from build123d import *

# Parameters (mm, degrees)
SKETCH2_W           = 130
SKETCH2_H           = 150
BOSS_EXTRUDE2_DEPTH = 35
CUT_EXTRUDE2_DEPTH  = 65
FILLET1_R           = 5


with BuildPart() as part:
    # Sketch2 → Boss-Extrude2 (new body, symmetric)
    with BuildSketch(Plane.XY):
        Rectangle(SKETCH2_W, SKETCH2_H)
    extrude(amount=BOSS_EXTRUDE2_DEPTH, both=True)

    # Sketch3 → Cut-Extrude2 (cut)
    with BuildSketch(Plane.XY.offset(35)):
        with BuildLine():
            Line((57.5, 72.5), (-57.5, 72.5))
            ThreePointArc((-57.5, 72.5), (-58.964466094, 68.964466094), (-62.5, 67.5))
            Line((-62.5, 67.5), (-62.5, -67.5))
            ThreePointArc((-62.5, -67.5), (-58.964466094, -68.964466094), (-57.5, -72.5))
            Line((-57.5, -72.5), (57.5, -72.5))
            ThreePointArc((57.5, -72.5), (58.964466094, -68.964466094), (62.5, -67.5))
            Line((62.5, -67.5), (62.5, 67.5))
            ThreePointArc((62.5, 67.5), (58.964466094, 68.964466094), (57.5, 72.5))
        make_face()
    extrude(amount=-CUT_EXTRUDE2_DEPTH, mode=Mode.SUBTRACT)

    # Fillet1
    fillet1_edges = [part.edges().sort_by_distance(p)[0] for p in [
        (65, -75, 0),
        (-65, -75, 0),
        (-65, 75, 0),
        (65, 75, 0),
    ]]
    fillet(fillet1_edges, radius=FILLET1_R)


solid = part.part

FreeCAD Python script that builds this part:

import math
import FreeCAD as App
import Part
import Sketcher

V = App.Vector


def edges_at(feature, points):
    """Names of the edges that pass closest to the given points."""
    edges = feature.Shape.Edges
    near = lambda p: min(range(len(edges)), key=lambda i: edges[i].distToShape(Part.Vertex(*p))[0])
    return sorted({f"Edge{near(p) + 1}" for p in points})


def add_polygon(sketch, points):
    """Adds a closed chain of lines whose ends are joined by coincident constraints."""
    first, n = sketch.GeometryCount, len(points)
    for a, b in zip(points, points[1:] + points[:1]):
        sketch.addGeometry(Part.LineSegment(App.Vector(*a, 0), App.Vector(*b, 0)), False)
    for i in range(n):
        sketch.addConstraint(Sketcher.Constraint("Coincident", first + i, 2, first + (i + 1) % n, 1))

doc = App.newDocument("Part")
body = doc.addObject("PartDesign::Body", "Body")

# Sketch on XY plane
sketch1 = body.newObject("Sketcher::SketchObject", "Sketch")
sketch1.AttachmentSupport = (doc.getObject("XY_Plane"), [""])
sketch1.MapMode = "FlatFace"
add_polygon(sketch1, [(-65, 75), (-65, -75), (65, -75), (65, 75)])  # lines 0-3
sketch1.addConstraint(Sketcher.Constraint("Vertical", 0))
sketch1.addConstraint(Sketcher.Constraint("Horizontal", 1))
sketch1.addConstraint(Sketcher.Constraint("Vertical", 2))
sketch1.addConstraint(Sketcher.Constraint("Horizontal", 3))
sketch1.addConstraint(Sketcher.Constraint("Symmetric", 0, 2, 2, 2, -1, 1))
sketch1.addConstraint(Sketcher.Constraint("DistanceX", 1, 1, 1, 2, 130.0))
sketch1.addConstraint(Sketcher.Constraint("DistanceY", 0, 2, 0, 1, 150.0))
pad1 = body.newObject("PartDesign::Pad", "Pad")
pad1.Profile = sketch1
pad1.Length = 70
pad1.Midplane = True

# Sketch on XY plane
sketch2 = body.newObject("Sketcher::SketchObject", "Sketch001")
sketch2.AttachmentSupport = (doc.getObject("XY_Plane"), [""])
sketch2.MapMode = "FlatFace"
sketch2.AttachmentOffset = App.Placement(V(0, 0, 35), App.Rotation())
sketch2.addGeometry(Part.LineSegment(V(57.5, 72.5, 0), V(-57.5, 72.5, 0)), False)
sketch2.addGeometry(Part.ArcOfCircle(Part.Circle(V(-62.5, 72.5, 0), V(0, 0, 1), 5), math.radians(-90), math.radians(0)), False)
sketch2.addGeometry(Part.LineSegment(V(-62.5, 67.5, 0), V(-62.5, -67.5, 0)), False)
sketch2.addGeometry(Part.ArcOfCircle(Part.Circle(V(-62.5, -72.5, 0), V(0, 0, 1), 5), math.radians(0), math.radians(90)), False)
sketch2.addGeometry(Part.LineSegment(V(-57.5, -72.5, 0), V(57.5, -72.5, 0)), False)
sketch2.addGeometry(Part.ArcOfCircle(Part.Circle(V(62.5, -72.5, 0), V(0, 0, 1), 5), math.radians(90), math.radians(180)), False)
sketch2.addGeometry(Part.LineSegment(V(62.5, -67.5, 0), V(62.5, 67.5, 0)), False)
sketch2.addGeometry(Part.ArcOfCircle(Part.Circle(V(62.5, 72.5, 0), V(0, 0, 1), 5), math.radians(180), math.radians(270)), False)
sketch2.addConstraint(Sketcher.Constraint("Coincident", 0, 2, 1, 2))
sketch2.addConstraint(Sketcher.Constraint("Coincident", 1, 1, 2, 1))
sketch2.addConstraint(Sketcher.Constraint("Coincident", 2, 2, 3, 2))
sketch2.addConstraint(Sketcher.Constraint("Coincident", 3, 1, 4, 1))
sketch2.addConstraint(Sketcher.Constraint("Coincident", 4, 2, 5, 2))
sketch2.addConstraint(Sketcher.Constraint("Coincident", 5, 1, 6, 1))
sketch2.addConstraint(Sketcher.Constraint("Coincident", 6, 2, 7, 2))
sketch2.addConstraint(Sketcher.Constraint("Coincident", 7, 1, 0, 1))
sketch2.addConstraint(Sketcher.Constraint("Horizontal", 0))
sketch2.addConstraint(Sketcher.Constraint("Vertical", 2))
sketch2.addConstraint(Sketcher.Constraint("Horizontal", 4))
sketch2.addConstraint(Sketcher.Constraint("Vertical", 6))
sketch2.addConstraint(Sketcher.Constraint("Equal", 1, 3))
sketch2.addConstraint(Sketcher.Constraint("Equal", 3, 5))
sketch2.addConstraint(Sketcher.Constraint("Equal", 5, 7))
sketch2.addConstraint(Sketcher.Constraint("Symmetric", 1, 3, 5, 3, -1, 1))
sketch2.addConstraint(Sketcher.Constraint("Symmetric", 3, 3, 7, 3, -1, 1))
sketch2.addConstraint(Sketcher.Constraint("Symmetric", 3, 3, 5, 3, -2))
sketch2.addConstraint(Sketcher.Constraint("Horizontal", 7, 3, 0, 2))
sketch2.addConstraint(Sketcher.Constraint("Horizontal", 5, 3, 3, 1))
sketch2.addConstraint(Sketcher.Constraint("Vertical", 3, 3, 1, 1))
sketch2.addConstraint(Sketcher.Constraint("Vertical", 7, 3, 5, 1))
sketch2.addConstraint(Sketcher.Constraint("Radius", 1, 5.0))
sketch2.addConstraint(Sketcher.Constraint("DistanceX", 0, 2, 0, 1, 115.0))
sketch2.addConstraint(Sketcher.Constraint("DistanceY", 2, 2, 2, 1, 135.0))
pocket1 = body.newObject("PartDesign::Pocket", "Pocket")
pocket1.Profile = sketch2
pocket1.Length = 65
doc.recompute()

fillet = body.newObject("PartDesign::Fillet", "Fillet")
fillet.Base = (pocket1, edges_at(pocket1, [
    (65, -75, 0),
    (-65, -75, 0),
    (-65, 75, 0),
    (65, 75, 0),
]))
fillet.Radius = 5

doc.recompute()
